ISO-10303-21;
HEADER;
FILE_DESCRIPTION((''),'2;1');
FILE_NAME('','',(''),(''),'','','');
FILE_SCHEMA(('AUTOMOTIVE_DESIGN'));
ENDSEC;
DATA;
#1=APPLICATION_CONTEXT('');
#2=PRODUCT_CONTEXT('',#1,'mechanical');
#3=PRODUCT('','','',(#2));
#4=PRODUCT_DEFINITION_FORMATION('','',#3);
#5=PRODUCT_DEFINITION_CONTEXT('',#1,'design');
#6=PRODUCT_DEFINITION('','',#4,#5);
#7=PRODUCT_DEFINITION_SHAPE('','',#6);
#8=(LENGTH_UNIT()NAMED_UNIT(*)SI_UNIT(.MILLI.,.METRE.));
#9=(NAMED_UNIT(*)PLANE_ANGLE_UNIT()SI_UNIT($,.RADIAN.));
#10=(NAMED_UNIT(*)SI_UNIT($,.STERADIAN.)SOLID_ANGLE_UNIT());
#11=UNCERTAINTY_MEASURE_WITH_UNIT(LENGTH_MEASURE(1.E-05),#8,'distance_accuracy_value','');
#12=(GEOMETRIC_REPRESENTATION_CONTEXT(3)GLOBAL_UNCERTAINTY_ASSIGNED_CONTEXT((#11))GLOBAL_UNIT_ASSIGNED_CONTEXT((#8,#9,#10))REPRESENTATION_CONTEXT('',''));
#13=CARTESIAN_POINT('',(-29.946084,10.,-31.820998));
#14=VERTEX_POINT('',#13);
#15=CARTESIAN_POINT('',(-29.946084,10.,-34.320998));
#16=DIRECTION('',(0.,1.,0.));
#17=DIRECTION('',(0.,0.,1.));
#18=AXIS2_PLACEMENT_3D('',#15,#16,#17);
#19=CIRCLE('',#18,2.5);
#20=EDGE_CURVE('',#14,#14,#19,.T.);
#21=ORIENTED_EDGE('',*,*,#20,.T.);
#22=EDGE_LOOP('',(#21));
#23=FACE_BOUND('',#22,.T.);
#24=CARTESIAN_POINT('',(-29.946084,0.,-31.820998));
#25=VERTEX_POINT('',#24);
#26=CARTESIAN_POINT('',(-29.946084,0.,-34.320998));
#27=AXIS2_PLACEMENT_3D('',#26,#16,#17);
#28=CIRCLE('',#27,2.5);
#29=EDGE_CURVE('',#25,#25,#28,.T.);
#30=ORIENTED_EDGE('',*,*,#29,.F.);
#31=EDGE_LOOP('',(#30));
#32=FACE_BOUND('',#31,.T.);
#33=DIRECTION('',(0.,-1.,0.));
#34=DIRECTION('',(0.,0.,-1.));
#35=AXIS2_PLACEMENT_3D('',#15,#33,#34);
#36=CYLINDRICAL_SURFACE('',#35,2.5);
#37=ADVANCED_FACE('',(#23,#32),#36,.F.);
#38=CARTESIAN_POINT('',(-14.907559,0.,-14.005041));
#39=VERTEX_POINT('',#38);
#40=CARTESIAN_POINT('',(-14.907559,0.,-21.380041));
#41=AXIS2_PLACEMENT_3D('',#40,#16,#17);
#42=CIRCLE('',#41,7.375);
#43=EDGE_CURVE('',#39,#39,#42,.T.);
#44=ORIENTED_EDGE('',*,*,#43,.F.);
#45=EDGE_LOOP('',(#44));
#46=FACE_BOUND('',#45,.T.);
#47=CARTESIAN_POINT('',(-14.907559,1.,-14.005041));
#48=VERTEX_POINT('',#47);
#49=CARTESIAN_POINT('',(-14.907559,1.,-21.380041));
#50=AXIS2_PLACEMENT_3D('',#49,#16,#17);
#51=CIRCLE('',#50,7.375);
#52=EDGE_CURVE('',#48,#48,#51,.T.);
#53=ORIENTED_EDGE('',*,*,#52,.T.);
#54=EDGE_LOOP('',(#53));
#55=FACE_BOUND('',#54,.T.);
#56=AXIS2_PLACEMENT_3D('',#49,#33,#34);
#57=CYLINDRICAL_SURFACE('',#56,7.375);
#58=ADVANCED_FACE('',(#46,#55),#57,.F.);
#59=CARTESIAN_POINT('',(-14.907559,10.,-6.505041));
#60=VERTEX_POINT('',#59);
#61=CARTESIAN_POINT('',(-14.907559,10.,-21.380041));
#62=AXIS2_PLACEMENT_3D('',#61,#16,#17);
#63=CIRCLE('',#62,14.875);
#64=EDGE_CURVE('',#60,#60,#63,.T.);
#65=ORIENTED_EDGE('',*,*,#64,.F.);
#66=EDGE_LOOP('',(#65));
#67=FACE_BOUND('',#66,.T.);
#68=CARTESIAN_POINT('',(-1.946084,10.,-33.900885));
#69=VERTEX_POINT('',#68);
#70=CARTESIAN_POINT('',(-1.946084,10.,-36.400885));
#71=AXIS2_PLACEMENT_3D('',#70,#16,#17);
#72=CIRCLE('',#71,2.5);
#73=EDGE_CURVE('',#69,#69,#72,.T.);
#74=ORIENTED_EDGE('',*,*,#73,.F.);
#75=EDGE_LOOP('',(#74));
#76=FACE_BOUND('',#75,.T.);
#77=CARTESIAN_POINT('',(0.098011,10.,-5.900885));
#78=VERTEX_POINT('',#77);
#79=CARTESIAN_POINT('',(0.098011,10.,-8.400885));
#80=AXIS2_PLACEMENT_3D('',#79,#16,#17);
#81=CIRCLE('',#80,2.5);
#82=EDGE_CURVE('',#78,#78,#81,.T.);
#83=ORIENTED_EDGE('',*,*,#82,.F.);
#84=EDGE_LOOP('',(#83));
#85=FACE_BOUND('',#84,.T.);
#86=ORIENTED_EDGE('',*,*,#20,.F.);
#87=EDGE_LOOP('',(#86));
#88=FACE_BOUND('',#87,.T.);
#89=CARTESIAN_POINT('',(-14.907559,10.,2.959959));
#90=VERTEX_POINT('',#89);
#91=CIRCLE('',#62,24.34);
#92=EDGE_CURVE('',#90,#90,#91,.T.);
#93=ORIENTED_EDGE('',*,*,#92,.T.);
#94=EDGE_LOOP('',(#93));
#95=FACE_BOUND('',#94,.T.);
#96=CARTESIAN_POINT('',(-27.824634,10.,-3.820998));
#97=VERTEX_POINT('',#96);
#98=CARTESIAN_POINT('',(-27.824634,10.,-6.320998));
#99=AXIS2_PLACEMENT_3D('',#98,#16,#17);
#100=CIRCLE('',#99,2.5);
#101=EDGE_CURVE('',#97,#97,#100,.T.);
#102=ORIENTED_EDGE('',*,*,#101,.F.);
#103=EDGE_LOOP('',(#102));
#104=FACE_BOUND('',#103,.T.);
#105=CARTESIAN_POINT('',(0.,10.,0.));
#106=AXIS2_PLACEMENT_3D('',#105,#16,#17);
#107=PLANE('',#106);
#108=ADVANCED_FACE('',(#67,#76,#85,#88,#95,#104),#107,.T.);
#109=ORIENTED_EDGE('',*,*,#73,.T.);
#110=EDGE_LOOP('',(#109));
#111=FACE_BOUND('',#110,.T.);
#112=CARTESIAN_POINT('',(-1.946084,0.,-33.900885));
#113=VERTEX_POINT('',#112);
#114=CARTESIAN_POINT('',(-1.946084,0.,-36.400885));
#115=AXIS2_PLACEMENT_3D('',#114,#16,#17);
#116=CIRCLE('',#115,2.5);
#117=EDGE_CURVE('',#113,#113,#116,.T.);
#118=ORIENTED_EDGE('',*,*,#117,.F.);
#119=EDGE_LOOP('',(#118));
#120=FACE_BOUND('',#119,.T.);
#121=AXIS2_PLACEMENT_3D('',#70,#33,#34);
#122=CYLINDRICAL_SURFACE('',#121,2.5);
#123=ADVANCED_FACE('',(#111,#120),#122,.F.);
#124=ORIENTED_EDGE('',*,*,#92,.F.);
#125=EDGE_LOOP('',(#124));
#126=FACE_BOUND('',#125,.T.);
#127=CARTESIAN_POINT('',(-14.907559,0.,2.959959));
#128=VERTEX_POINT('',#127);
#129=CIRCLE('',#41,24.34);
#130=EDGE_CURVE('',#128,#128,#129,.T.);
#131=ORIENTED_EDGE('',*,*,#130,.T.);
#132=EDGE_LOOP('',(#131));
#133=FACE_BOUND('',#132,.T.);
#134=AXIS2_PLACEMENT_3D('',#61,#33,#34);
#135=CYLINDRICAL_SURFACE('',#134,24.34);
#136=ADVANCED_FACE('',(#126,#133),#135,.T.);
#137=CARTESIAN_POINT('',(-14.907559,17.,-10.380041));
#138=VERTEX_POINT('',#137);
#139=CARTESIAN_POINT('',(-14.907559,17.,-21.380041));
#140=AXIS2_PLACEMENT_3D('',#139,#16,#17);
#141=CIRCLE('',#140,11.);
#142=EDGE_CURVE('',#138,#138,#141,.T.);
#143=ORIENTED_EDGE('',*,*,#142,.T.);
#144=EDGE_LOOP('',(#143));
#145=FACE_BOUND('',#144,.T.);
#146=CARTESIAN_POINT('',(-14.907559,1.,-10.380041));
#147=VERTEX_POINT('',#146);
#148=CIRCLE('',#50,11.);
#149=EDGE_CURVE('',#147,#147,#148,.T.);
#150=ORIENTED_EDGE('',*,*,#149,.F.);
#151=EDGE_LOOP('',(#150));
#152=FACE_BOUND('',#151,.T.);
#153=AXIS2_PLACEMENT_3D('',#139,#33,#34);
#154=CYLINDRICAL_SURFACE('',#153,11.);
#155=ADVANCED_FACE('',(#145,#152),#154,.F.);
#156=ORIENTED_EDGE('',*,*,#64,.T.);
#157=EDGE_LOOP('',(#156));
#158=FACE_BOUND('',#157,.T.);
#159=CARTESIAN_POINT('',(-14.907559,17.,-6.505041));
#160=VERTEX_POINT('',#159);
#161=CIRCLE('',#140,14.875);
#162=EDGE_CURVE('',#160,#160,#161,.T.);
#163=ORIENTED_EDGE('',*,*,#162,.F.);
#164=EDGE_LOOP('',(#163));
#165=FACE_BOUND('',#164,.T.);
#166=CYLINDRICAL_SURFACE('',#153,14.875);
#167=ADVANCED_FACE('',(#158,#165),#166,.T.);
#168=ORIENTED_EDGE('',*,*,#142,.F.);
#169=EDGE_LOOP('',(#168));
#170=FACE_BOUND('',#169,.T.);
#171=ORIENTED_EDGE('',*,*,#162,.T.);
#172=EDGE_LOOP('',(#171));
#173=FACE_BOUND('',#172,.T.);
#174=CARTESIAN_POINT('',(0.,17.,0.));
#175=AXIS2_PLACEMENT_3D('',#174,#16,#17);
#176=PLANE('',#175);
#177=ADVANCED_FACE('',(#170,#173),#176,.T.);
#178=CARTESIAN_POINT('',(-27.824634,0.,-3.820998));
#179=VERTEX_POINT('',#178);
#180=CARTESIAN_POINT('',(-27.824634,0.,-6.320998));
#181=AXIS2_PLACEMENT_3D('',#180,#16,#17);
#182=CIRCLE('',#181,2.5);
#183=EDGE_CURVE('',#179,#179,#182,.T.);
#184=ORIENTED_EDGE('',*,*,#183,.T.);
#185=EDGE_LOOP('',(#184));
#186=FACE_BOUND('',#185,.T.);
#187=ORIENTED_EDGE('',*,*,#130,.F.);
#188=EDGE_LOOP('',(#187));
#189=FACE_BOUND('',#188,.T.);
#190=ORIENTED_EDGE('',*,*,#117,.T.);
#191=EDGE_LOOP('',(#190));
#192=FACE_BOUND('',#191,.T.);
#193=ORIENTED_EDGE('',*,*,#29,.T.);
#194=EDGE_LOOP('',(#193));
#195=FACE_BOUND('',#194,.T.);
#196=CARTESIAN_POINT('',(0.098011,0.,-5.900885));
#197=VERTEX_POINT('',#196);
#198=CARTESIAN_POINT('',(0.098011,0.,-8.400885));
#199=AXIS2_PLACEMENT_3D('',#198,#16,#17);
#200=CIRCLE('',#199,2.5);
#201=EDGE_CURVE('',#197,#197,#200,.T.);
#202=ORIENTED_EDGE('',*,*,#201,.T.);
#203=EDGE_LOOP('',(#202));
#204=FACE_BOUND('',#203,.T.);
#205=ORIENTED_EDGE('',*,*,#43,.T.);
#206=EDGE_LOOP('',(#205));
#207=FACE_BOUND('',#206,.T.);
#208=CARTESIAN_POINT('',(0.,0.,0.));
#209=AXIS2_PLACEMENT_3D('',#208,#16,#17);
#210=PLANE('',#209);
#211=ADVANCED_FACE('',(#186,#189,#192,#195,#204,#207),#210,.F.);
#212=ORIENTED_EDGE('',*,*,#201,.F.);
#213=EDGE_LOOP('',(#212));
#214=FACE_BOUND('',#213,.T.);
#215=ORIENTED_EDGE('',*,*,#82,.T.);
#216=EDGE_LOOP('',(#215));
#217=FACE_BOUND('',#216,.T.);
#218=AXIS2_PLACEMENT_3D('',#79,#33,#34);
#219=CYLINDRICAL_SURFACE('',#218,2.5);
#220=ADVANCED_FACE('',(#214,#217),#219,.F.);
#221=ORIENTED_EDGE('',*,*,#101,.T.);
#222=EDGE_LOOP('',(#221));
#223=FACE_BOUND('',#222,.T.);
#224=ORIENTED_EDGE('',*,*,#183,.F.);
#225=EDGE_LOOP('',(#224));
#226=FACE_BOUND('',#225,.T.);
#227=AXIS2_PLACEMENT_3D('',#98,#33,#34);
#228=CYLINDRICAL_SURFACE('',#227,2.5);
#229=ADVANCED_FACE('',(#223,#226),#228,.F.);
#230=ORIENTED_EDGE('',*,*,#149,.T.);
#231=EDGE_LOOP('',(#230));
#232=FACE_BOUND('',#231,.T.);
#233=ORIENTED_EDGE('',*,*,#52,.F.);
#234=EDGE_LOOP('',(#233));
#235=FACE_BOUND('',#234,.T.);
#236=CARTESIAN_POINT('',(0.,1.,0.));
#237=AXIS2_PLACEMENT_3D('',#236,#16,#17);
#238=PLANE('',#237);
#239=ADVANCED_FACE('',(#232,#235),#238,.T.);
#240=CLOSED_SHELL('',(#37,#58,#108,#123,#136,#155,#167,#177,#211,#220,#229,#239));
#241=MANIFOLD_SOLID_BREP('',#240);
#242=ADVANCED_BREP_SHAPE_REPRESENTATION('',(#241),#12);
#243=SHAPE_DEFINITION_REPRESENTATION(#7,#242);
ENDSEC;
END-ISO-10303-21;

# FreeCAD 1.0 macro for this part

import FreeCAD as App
import Part
import Sketcher

V = App.Vector

doc = App.newDocument("Part")
params = doc.addObject("Spreadsheet::Sheet", "Params")
for row, (alias, value) in enumerate([
    ("sketch1_diameter", "22 mm"),
    ("sketch1_diameter2", "29.75 mm"),
    ("pad1_length", "17 mm"),
    ("sketch2_diameter", "5 mm"),
    ("sketch2_diameter2", "48.68 mm"),
    ("sketch2_diameter3", "29.75 mm"),
    ("pad2_length", "10 mm"),
    ("sketch3_diameter", "22 mm"),
    ("sketch3_diameter2", "14.75 mm"),
    ("pad3_length", "1 mm"),
], start=1):
    params.set(f"A{row}", alias)
    params.set(f"B{row}", "=" + value)
    params.setAlias(f"B{row}", alias)

body = doc.addObject("PartDesign::Body", "Body")

# Sketch on XZ plane
sketch1 = body.newObject("Sketcher::SketchObject", "Sketch")
sketch1.AttachmentSupport = (doc.getObject("XZ_Plane"), [""])
sketch1.MapMode = "FlatFace"
sketch1.addGeometry([
    Part.Circle(V(-15, -21, 0), V(0, 0, 1), 15),
    Part.Circle(V(-15, -21, 0), V(0, 0, 1), 11),
], False)
sketch1.addConstraint([
    Sketcher.Constraint("Coincident", 1, 3, 0, 3),
    Sketcher.Constraint("Diameter", 1, 22.0),
    Sketcher.Constraint("Diameter", 0, 29.75),
    Sketcher.Constraint("DistanceX", 0, 3, -1, 1, 14.907559),
    Sketcher.Constraint("DistanceY", 0, 3, -1, 1, 21.380041),
])
sketch1.setExpression("Constraints[1]", "Params.sketch1_diameter")
sketch1.setExpression("Constraints[2]", "Params.sketch1_diameter2")
pad1 = body.newObject("PartDesign::Pad", "Pad")
pad1.Profile = sketch1
pad1.setExpression("Length", "Params.pad1_length")
pad1.Reversed = True

# Sketch on XZ plane
sketch2 = body.newObject("Sketcher::SketchObject", "Sketch001")
sketch2.AttachmentSupport = (doc.getObject("XZ_Plane"), [""])
sketch2.MapMode = "FlatFace"
sketch2.addGeometry([
    Part.Circle(V(-14.9, -21.4, 0), V(0, 0, 1), 24.3),  # 0
    Part.Circle(V(-29.9, -34.3, 0), V(0, 0, 1), 2.5),  # 1
    Part.Circle(V(-27.8, -6.3, 0), V(0, 0, 1), 2.5),  # 2
    Part.Circle(V(-14.9, -21.4, 0), V(0, 0, 1), 14.9),  # 3
    Part.Circle(V(-1.9, -36.4, 0), V(0, 0, 1), 2.5),  # 4
    Part.Circle(V(0.1, -8.4, 0), V(0, 0, 1), 2.5),  # 5
], False)
sketch2.addConstraint([
    Sketcher.Constraint("Coincident", 3, 3, 0, 3),
    Sketcher.Constraint("Equal", 1, 2),
    Sketcher.Constraint("Equal", 2, 4),
    Sketcher.Constraint("Equal", 4, 5),
    Sketcher.Constraint("Diameter", 1, 5.0),
    Sketcher.Constraint("Diameter", 0, 48.68),
    Sketcher.Constraint("Diameter", 3, 29.75),
    Sketcher.Constraint("DistanceY", 1, 3, 2, 3, 28.0),
    Sketcher.Constraint("DistanceX", 1, 3, 4, 3, 28.0),
    Sketcher.Constraint("DistanceY", 4, 3, 5, 3, 28.0),
    Sketcher.Constraint("DistanceX", 0, 3, -1, 1, 14.907559),
    Sketcher.Constraint("DistanceY", 0, 3, -1, 1, 21.380041),
    Sketcher.Constraint("DistanceX", -1, 1, 5, 3, 0.098011),
    Sketcher.Constraint("DistanceX", 1, 3, 2, 3, 2.12145),
    Sketcher.Constraint("DistanceX", 1, 3, -1, 1, 29.946084),
    Sketcher.Constraint("DistanceY", 1, 3, -1, 1, 34.320998),
    Sketcher.Constraint("DistanceY", 4, 3, -1, 1, 36.400885),
])
sketch2.setExpression("Constraints[4]", "Params.sketch2_diameter")
sketch2.setExpression("Constraints[5]", "Params.sketch2_diameter2")
sketch2.setExpression("Constraints[6]", "Params.sketch2_diameter3")
pad2 = body.newObject("PartDesign::Pad", "Pad001")
pad2.Profile = sketch2
pad2.setExpression("Length", "Params.pad2_length")
pad2.Reversed = True

# Sketch on XZ plane
sketch3 = body.newObject("Sketcher::SketchObject", "Sketch002")
sketch3.AttachmentSupport = (doc.getObject("XZ_Plane"), [""])
sketch3.MapMode = "FlatFace"
sketch3.addGeometry([
    Part.Circle(V(-15, -21, 0), V(0, 0, 1), 11),
    Part.Circle(V(-15, -21, 0), V(0, 0, 1), 7),
], False)
sketch3.addConstraint([
    Sketcher.Constraint("Coincident", 1, 3, 0, 3),
    Sketcher.Constraint("Diameter", 0, 22.0),
    Sketcher.Constraint("Diameter", 1, 14.75),
    Sketcher.Constraint("DistanceX", 0, 3, -1, 1, 14.907559),
    Sketcher.Constraint("DistanceY", 0, 3, -1, 1, 21.380041),
])
sketch3.setExpression("Constraints[1]", "Params.sketch3_diameter")
sketch3.setExpression("Constraints[2]", "Params.sketch3_diameter2")
pad3 = body.newObject("PartDesign::Pad", "Pad002")
pad3.Profile = sketch3
pad3.setExpression("Length", "Params.pad3_length")
pad3.Reversed = True

doc.recompute()
